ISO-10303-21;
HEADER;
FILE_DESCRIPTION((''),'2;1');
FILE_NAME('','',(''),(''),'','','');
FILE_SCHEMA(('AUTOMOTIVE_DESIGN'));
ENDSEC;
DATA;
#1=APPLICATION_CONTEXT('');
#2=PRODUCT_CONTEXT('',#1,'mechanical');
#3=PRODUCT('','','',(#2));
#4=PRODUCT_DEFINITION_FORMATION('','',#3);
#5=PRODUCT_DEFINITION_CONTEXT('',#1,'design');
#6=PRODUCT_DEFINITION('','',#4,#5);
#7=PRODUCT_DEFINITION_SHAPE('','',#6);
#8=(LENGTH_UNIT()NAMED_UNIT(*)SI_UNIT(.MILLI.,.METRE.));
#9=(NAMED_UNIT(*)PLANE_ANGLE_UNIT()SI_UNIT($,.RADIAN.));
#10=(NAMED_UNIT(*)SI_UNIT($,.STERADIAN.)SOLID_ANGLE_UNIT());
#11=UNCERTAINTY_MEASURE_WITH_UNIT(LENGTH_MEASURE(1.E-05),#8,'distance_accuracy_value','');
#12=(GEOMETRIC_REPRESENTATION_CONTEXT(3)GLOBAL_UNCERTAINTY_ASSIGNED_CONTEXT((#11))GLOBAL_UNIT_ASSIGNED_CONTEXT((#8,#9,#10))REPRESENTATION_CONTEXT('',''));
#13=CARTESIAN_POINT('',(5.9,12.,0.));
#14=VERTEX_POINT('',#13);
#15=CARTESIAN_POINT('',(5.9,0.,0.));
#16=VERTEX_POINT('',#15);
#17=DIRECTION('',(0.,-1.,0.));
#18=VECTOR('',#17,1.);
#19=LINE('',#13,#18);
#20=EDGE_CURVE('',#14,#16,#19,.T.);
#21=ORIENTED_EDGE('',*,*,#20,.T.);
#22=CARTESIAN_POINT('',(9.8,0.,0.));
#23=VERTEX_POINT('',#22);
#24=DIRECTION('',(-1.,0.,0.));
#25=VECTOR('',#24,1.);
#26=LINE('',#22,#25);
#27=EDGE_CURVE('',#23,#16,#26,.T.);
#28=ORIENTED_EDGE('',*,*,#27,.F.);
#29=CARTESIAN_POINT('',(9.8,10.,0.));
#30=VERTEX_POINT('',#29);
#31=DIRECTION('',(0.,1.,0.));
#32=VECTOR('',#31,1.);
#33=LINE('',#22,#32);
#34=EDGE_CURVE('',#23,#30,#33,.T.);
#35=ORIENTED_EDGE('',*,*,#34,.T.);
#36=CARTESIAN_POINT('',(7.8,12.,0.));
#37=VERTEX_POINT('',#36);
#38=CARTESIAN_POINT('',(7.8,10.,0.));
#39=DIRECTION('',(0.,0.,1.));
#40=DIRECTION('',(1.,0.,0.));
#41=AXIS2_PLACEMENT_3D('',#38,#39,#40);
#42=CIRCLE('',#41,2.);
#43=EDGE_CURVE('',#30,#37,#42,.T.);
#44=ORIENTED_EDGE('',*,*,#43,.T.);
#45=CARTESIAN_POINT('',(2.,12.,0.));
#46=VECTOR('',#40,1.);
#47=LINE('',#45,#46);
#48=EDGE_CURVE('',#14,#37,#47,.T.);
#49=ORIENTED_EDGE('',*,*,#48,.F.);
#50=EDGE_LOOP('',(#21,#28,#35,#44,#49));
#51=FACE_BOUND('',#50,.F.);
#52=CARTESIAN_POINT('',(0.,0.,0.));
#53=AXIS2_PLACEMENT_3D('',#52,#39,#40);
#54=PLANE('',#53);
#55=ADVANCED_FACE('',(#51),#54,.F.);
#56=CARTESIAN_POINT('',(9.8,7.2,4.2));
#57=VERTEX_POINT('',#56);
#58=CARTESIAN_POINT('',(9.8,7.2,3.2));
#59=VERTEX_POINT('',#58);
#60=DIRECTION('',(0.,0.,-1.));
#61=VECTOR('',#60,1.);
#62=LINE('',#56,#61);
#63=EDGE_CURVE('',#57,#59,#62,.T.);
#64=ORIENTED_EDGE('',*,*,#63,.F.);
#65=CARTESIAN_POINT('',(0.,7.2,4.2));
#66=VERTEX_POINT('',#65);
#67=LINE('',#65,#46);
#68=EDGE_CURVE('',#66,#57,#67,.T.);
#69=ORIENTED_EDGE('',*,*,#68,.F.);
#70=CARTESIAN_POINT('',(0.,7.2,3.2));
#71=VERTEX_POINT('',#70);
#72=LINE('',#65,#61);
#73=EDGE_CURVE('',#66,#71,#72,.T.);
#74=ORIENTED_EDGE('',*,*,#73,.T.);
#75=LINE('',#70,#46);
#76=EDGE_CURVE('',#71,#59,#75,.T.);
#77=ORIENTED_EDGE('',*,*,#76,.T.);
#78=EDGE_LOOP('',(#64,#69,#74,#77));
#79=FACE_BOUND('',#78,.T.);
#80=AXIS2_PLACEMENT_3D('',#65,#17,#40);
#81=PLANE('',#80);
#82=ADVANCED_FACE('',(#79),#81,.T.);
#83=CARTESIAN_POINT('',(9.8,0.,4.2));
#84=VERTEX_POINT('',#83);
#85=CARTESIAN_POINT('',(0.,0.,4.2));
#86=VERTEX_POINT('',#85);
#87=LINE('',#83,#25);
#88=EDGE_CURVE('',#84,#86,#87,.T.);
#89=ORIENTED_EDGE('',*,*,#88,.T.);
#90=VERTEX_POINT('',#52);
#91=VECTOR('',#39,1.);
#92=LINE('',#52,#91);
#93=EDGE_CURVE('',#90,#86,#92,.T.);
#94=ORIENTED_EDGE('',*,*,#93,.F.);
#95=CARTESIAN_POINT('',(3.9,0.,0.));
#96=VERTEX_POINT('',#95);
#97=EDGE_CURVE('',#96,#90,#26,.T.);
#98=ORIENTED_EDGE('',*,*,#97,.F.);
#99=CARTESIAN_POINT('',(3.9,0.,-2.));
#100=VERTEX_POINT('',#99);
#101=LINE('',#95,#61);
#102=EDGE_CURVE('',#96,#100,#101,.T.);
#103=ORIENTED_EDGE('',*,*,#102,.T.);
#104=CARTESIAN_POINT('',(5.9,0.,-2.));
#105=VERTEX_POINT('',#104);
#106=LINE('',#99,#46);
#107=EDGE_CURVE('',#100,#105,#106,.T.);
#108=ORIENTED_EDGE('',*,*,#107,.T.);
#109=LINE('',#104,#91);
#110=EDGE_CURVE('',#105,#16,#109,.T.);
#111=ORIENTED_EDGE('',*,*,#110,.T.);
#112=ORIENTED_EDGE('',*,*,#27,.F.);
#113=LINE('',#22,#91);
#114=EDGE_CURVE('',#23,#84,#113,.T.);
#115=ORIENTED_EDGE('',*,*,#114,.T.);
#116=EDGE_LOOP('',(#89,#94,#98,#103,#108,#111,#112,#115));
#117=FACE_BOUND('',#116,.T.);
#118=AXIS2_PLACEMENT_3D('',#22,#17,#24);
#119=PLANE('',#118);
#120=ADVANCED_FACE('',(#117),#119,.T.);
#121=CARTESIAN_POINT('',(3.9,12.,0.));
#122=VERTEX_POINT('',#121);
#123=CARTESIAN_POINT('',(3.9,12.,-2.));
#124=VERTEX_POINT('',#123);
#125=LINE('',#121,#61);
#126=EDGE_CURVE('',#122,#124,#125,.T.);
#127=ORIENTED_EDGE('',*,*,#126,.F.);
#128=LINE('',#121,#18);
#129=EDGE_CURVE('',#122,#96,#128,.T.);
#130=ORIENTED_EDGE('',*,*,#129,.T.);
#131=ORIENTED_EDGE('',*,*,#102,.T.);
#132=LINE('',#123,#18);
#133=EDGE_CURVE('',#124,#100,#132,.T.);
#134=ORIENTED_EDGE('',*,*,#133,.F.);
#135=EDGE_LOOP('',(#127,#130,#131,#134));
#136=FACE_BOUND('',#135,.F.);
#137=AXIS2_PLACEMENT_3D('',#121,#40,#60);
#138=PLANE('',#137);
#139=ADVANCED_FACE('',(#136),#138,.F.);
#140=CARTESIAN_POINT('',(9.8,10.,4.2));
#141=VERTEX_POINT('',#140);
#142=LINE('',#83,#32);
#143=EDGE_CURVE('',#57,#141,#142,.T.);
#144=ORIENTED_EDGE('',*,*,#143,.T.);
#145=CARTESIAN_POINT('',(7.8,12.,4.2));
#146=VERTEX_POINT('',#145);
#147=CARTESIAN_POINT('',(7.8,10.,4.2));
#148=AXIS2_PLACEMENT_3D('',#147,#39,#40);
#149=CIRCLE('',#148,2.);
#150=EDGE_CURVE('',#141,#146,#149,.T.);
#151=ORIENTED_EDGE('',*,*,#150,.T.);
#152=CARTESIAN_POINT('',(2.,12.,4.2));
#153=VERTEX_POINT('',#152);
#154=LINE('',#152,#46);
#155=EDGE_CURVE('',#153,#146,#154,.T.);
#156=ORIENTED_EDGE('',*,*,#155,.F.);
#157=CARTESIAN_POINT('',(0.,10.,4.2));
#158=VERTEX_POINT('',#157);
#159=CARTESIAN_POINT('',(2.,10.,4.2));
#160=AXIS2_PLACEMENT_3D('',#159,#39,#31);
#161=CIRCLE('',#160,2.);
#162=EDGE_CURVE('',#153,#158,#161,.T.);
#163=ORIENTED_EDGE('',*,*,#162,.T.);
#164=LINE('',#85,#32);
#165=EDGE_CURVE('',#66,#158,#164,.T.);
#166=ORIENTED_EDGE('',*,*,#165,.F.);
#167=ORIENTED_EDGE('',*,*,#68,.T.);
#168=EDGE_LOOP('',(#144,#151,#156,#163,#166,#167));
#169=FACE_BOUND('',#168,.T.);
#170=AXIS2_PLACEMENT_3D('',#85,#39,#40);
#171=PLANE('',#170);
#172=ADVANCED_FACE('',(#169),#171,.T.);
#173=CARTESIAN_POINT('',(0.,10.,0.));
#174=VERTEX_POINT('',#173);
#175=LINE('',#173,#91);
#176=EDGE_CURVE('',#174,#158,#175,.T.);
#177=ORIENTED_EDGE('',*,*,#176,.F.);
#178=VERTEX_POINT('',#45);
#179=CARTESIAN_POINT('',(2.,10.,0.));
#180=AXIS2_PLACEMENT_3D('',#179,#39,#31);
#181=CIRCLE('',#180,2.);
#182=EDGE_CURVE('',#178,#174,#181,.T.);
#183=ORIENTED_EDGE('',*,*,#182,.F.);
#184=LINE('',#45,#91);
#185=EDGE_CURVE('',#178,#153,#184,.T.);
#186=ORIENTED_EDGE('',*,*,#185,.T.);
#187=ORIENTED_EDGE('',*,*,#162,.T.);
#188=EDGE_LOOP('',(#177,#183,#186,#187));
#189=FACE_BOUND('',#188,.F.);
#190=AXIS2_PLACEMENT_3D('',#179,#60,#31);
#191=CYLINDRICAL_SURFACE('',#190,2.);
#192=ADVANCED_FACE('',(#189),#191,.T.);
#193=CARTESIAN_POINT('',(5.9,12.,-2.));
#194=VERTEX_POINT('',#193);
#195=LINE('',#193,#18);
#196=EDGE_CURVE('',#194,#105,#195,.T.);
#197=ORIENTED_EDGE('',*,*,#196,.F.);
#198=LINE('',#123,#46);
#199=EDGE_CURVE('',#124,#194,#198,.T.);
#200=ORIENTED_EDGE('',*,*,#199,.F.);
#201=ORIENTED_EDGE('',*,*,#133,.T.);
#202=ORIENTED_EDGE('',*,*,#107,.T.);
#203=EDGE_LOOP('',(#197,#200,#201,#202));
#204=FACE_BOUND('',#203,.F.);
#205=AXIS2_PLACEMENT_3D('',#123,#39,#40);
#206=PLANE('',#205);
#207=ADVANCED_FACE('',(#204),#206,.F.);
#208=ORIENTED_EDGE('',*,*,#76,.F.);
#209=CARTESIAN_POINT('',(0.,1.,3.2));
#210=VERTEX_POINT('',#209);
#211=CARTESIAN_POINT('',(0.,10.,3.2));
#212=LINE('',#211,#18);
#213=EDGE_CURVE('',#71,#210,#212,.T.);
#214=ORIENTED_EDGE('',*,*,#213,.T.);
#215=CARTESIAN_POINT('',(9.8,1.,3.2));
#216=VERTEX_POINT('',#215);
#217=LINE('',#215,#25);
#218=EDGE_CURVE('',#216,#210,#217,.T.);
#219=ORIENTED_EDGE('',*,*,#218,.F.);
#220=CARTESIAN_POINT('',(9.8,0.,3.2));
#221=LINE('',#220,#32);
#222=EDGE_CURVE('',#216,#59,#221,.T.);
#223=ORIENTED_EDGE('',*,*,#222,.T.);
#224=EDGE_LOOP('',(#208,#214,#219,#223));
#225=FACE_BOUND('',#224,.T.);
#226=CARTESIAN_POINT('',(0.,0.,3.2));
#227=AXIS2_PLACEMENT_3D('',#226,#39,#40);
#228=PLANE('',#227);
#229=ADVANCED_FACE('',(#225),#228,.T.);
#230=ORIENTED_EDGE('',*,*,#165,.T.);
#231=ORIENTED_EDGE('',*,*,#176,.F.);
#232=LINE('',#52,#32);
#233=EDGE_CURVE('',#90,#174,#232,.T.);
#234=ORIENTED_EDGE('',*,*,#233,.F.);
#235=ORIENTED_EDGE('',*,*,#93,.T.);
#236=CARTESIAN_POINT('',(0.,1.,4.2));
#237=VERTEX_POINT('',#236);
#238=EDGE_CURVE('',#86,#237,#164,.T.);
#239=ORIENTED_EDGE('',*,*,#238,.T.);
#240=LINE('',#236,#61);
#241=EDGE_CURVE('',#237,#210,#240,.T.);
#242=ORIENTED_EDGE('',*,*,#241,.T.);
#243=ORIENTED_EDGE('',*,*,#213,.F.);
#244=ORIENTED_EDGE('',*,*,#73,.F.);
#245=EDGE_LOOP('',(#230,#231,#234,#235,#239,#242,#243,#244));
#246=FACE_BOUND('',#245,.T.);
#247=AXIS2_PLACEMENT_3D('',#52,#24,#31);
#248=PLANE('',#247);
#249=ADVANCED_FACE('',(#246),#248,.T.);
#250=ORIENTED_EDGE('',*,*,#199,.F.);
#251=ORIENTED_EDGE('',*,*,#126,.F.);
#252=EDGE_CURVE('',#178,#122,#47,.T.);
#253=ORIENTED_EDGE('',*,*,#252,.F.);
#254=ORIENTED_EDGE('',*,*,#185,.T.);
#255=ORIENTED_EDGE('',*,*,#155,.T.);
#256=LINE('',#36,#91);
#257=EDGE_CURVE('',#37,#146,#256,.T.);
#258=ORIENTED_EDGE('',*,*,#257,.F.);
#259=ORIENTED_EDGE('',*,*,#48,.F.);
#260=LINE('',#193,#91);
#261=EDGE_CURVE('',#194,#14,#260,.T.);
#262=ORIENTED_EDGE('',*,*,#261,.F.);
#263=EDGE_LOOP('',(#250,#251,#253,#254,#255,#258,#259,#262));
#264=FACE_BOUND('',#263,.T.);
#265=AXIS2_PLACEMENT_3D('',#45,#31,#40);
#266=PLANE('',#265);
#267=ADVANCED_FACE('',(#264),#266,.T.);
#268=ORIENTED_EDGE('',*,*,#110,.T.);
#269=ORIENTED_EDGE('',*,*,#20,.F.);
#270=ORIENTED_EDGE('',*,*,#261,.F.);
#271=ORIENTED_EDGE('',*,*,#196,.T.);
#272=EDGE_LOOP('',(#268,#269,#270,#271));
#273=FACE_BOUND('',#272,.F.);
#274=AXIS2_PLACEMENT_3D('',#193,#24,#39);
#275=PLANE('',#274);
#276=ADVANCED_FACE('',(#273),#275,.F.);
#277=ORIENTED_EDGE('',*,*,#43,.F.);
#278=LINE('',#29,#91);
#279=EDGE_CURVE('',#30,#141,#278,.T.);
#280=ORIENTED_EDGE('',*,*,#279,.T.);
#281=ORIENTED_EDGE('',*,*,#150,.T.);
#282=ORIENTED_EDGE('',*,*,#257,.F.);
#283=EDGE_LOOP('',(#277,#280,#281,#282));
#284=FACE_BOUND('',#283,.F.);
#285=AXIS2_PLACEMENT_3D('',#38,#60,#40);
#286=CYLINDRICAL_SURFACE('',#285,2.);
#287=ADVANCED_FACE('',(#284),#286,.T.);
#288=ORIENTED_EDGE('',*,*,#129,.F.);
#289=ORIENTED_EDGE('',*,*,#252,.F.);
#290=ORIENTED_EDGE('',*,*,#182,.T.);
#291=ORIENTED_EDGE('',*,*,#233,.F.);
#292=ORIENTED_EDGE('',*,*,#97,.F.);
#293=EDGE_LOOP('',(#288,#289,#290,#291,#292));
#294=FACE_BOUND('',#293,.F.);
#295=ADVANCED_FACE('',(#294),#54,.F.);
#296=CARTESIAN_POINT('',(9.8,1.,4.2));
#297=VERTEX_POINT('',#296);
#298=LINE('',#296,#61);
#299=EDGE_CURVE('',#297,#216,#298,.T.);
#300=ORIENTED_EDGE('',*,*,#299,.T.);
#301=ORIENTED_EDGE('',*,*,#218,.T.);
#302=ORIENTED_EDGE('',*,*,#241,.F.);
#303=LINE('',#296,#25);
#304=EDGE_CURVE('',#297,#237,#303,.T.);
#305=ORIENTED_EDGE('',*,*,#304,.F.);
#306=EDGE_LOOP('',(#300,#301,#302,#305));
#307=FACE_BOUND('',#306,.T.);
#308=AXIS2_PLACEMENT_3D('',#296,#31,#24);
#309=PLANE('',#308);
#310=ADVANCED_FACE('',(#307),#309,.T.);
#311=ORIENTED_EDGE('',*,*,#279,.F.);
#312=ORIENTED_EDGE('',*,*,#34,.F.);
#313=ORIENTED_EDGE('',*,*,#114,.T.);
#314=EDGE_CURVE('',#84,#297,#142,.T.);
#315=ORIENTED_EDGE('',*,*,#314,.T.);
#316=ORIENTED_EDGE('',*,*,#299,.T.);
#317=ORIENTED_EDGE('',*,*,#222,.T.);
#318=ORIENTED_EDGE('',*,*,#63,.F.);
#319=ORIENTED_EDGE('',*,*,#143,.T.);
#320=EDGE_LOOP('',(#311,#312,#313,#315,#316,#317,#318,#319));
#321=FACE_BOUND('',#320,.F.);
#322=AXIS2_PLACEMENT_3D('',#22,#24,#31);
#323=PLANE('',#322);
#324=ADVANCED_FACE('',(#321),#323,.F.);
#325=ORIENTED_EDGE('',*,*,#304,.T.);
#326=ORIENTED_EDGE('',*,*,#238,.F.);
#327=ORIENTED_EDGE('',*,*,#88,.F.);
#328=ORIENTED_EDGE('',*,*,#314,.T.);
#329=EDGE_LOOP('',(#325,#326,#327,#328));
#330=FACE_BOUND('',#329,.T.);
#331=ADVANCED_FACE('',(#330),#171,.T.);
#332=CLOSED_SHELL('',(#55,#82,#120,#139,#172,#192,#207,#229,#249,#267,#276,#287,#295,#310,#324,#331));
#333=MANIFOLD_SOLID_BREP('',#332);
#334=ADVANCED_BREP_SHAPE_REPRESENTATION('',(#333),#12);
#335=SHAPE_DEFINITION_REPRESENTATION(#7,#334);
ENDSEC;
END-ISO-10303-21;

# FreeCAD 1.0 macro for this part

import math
import FreeCAD as App
import Part
import Sketcher

V = App.Vector

doc = App.newDocument("Part")
body = doc.addObject("PartDesign::Body", "Body")

# Sketch on XY plane
sketch1 = body.newObject("Sketcher::SketchObject", "Sketch")
sketch1.AttachmentSupport = (doc.getObject("XY_Plane"), [""])
sketch1.MapMode = "FlatFace"
sketch1.addGeometry(Part.LineSegment(V(9.8, 0, 0), V(9.8, 10, 0)), False)
sketch1.addGeometry(Part.ArcOfCircle(Part.Circle(V(7.8, 10, 0), V(0, 0, 1), 2), math.radians(0), math.radians(90)), False)
sketch1.addGeometry(Part.LineSegment(V(7.8, 12, 0), V(2, 12, 0)), False)
sketch1.addGeometry(Part.ArcOfCircle(Part.Circle(V(2, 10, 0), V(0, 0, 1), 2), math.radians(90), math.radians(180)), False)
sketch1.addGeometry(Part.LineSegment(V(0, 10, 0), V(0, 0, 0)), False)
sketch1.addGeometry(Part.LineSegment(V(0, 0, 0), V(9.8, 0, 0)), False)
sketch1.addConstraint(Sketcher.Constraint("Tangent", 0, 2, 1, 1))
sketch1.addConstraint(Sketcher.Constraint("Tangent", 1, 2, 2, 1))
sketch1.addConstraint(Sketcher.Constraint("Tangent", 2, 2, 3, 1))
sketch1.addConstraint(Sketcher.Constraint("Tangent", 3, 2, 4, 1))
sketch1.addConstraint(Sketcher.Constraint("Coincident", 4, 2, 5, 1))
sketch1.addConstraint(Sketcher.Constraint("Coincident", 5, 2, 0, 1))
sketch1.addConstraint(Sketcher.Constraint("Vertical", 0))
sketch1.addConstraint(Sketcher.Constraint("Horizontal", 2))
sketch1.addConstraint(Sketcher.Constraint("Vertical", 4))
sketch1.addConstraint(Sketcher.Constraint("Horizontal", 5))
sketch1.addConstraint(Sketcher.Constraint("Coincident", 4, 2, -1, 1))
sketch1.addConstraint(Sketcher.Constraint("Equal", 1, 3))
sketch1.addConstraint(Sketcher.Constraint("Radius", 1, 2.0))
sketch1.addConstraint(Sketcher.Constraint("DistanceY", 0, 1, 0, 2, 10.0))
sketch1.addConstraint(Sketcher.Constraint("DistanceX", 2, 2, 2, 1, 5.8))
pad1 = body.newObject("PartDesign::Pad", "Pad")
pad1.Profile = sketch1
pad1.Length = 4.2

# Sketch on XY plane
sketch2 = body.newObject("Sketcher::SketchObject", "Sketch001")
sketch2.AttachmentSupport = (doc.getObject("XY_Plane"), [""])
sketch2.MapMode = "FlatFace"
sketch2.AttachmentOffset = App.Placement(V(0, 0, 4.2), App.Rotation())
sketch2.addGeometry(Part.LineSegment(V(10, 7, 0), V(0, 7, 0)), False)
sketch2.addGeometry(Part.LineSegment(V(0, 7, 0), V(0, 1, 0)), False)
sketch2.addGeometry(Part.LineSegment(V(0, 1, 0), V(10, 1, 0)), False)
sketch2.addGeometry(Part.LineSegment(V(10, 1, 0), V(10, 7, 0)), False)
sketch2.addConstraint(Sketcher.Constraint("Coincident", 0, 2, 1, 1))
sketch2.addConstraint(Sketcher.Constraint("Coincident", 1, 2, 2, 1))
sketch2.addConstraint(Sketcher.Constraint("Coincident", 2, 2, 3, 1))
sketch2.addConstraint(Sketcher.Constraint("Coincident", 3, 2, 0, 1))
sketch2.addConstraint(Sketcher.Constraint("Horizontal", 0))
sketch2.addConstraint(Sketcher.Constraint("Vertical", 1))
sketch2.addConstraint(Sketcher.Constraint("Horizontal", 2))
sketch2.addConstraint(Sketcher.Constraint("Vertical", 3))
sketch2.addConstraint(Sketcher.Constraint("PointOnObject", 0, 2, -2))
sketch2.addConstraint(Sketcher.Constraint("DistanceY", 1, 2, 1, 1, 6.2))
sketch2.addConstraint(Sketcher.Constraint("DistanceY", -1, 1, 1, 2, 1.0))
sketch2.addConstraint(Sketcher.Constraint("DistanceX", 0, 2, 0, 1, 9.8))
pocket1 = body.newObject("PartDesign::Pocket", "Pocket")
pocket1.Profile = sketch2
pocket1.Length = 1

# Sketch on XZ plane
sketch3 = body.newObject("Sketcher::SketchObject", "Sketch002")
sketch3.AttachmentSupport = (doc.getObject("XZ_Plane"), [""])
sketch3.MapMode = "FlatFace"
sketch3.AttachmentOffset = App.Placement(V(0, 0, -12), App.Rotation())
sketch3.addGeometry(Part.LineSegment(V(3.9, -2, 0), V(3.9, 0, 0)), False)
sketch3.addGeometry(Part.LineSegment(V(3.9, 0, 0), V(5.9, 0, 0)), False)
sketch3.addGeometry(Part.LineSegment(V(5.9, 0, 0), V(5.9, -2, 0)), False)
sketch3.addGeometry(Part.LineSegment(V(5.9, -2, 0), V(3.9, -2, 0)), False)
sketch3.addConstraint(Sketcher.Constraint("Coincident", 0, 2, 1, 1))
sketch3.addConstraint(Sketcher.Constraint("Coincident", 1, 2, 2, 1))
sketch3.addConstraint(Sketcher.Constraint("Coincident", 2, 2, 3, 1))
sketch3.addConstraint(Sketcher.Constraint("Coincident", 3, 2, 0, 1))
sketch3.addConstraint(Sketcher.Constraint("Vertical", 0))
sketch3.addConstraint(Sketcher.Constraint("Horizontal", 1))
sketch3.addConstraint(Sketcher.Constraint("Vertical", 2))
sketch3.addConstraint(Sketcher.Constraint("Horizontal", 3))
sketch3.addConstraint(Sketcher.Constraint("PointOnObject", 0, 2, -1))
sketch3.addConstraint(Sketcher.Constraint("Equal", 3, 0))
sketch3.addConstraint(Sketcher.Constraint("DistanceX", 1, 1, 1, 2, 2.0))
sketch3.addConstraint(Sketcher.Constraint("DistanceX", -1, 1, 0, 2, 3.9))
pad2 = body.newObject("PartDesign::Pad", "Pad001")
pad2.Profile = sketch3
pad2.Length = 12

doc.recompute()
